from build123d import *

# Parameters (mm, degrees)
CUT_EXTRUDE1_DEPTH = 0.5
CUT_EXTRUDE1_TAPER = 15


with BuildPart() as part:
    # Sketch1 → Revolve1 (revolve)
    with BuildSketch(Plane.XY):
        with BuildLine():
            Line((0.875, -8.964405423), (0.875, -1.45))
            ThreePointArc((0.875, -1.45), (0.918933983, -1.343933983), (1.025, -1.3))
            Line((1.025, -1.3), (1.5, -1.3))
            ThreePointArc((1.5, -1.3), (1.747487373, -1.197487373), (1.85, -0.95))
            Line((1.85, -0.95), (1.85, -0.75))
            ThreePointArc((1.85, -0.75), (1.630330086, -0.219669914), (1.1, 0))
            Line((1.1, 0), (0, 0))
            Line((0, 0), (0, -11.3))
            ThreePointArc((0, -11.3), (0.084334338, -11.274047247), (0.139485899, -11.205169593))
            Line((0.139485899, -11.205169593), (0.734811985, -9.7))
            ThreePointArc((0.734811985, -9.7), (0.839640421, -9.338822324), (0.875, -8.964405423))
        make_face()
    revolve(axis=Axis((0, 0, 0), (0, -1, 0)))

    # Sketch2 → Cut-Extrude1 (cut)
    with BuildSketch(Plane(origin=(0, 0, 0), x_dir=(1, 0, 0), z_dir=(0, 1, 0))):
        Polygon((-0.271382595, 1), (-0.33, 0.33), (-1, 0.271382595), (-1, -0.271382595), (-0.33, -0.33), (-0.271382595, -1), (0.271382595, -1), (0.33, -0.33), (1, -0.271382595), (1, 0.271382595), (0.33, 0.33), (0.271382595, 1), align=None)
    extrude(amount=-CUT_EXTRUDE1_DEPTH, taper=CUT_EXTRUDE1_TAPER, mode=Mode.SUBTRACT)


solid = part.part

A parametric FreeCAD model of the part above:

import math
import FreeCAD as App
import Part
import Sketcher
from FreeCAD import Vector
Q = App.Units.Quantity

doc = App.newDocument("Part")
body = doc.addObject("PartDesign::Body", "Body")

sketch1 = body.newObject("Sketcher::SketchObject", "Sketch")
sketch1.AttachmentSupport = (doc.getObject("XY_Plane"), [""])
sketch1.MapMode = "FlatFace"
sketch1.addGeometry([
    Part.LineSegment(Vector(0.875, -8.964405, 0), Vector(0.875, -1.45, 0)),
    Part.ArcOfCircle(Part.Circle(Vector(1.025, -1.45, 0), Vector(0, 0, 1), 0.15), math.radians(90), math.radians(180)),
    Part.LineSegment(Vector(1.025, -1.3, 0), Vector(1.5, -1.3, 0)),
    Part.ArcOfCircle(Part.Circle(Vector(1.5, -0.95, 0), Vector(0, 0, 1), 0.35), math.radians(-90), math.radians(0)),
    Part.LineSegment(Vector(1.85, -0.95, 0), Vector(1.85, -0.75, 0)),
    Part.ArcOfCircle(Part.Circle(Vector(1.1, -0.75, 0), Vector(0, 0, 1), 0.75), math.radians(0), math.radians(90)),
    Part.LineSegment(Vector(1.1, 0, 0), Vector(0, 0, 0)),
    Part.LineSegment(Vector(0, 0, 0), Vector(0, -11.3, 0)),
    Part.ArcOfCircle(Part.Circle(Vector(0, -11.15, 0), Vector(0, 0, 1), 0.15), math.radians(-90), math.radians(-21.579834)),
    Part.LineSegment(Vector(0.139486, -11.20517, 0), Vector(0.734812, -9.7, 0)),
    Part.ArcOfCircle(Part.Circle(Vector(-1.125, -8.964405, 0), Vector(0, 0, 1), 2), math.radians(-21.579834), math.radians(0)),
], False)
sketch1.addConstraint([
    Sketcher.Constraint("Tangent", 0, 2, 1, 2),
    Sketcher.Constraint("Tangent", 1, 1, 2, 1),
    Sketcher.Constraint("Tangent", 2, 2, 3, 1),
    Sketcher.Constraint("Tangent", 3, 2, 4, 1),
    Sketcher.Constraint("Tangent", 4, 2, 5, 1),
    Sketcher.Constraint("Tangent", 5, 2, 6, 1),
    Sketcher.Constraint("Coincident", 6, 2, 7, 1),
    Sketcher.Constraint("Coincident", 7, 2, 8, 1),
    Sketcher.Constraint("Tangent", 8, 2, 9, 1),
    Sketcher.Constraint("Tangent", 9, 2, 10, 1),
    Sketcher.Constraint("Tangent", 10, 2, 0, 1),
    Sketcher.Constraint("Vertical", 0),
    Sketcher.Constraint("Horizontal", 2),
    Sketcher.Constraint("Vertical", 4),
    Sketcher.Constraint("Horizontal", 6),
    Sketcher.Constraint("Vertical", 7),
    Sketcher.Constraint("Coincident", 6, 2, -1, 1),
    Sketcher.Constraint("Equal", 1, 8),
    Sketcher.Constraint("PointOnObject", 8, 3, -2),
    Sketcher.Constraint("Radius", 10, 2.0),
    Sketcher.Constraint("Radius", 1, 0.15),
    Sketcher.Constraint("Radius", 3, 0.35),
    Sketcher.Constraint("Radius", 5, 0.75),
    Sketcher.Constraint("DistanceX", 6, 2, 6, 1, 1.1),
    Sketcher.Constraint("DistanceY", 4, 1, 4, 2, 0.2),
    Sketcher.Constraint("DistanceY", 7, 2, 7, 1, 11.3),
    Sketcher.Constraint("DistanceY", 9, 2, -1, 1, 9.7),
    Sketcher.Constraint("DistanceX", 2, 1, 2, 2, 0.475),
])
revolution = body.newObject("PartDesign::Revolution", "Revolution")
revolution.Profile = sketch1
revolution.ReferenceAxis = (sketch1, ["V_Axis"])
revolution.Angle = 360

sketch2 = body.newObject("Sketcher::SketchObject", "Sketch001")
sketch2.AttachmentSupport = (doc.getObject("XZ_Plane"), [""])
sketch2.MapMode = "FlatFace"
sketch2.addGeometry([
    Part.LineSegment(Vector(-0.271383, -1, 0), Vector(-0.33, -0.33, 0)),
    Part.LineSegment(Vector(-0.33, -0.33, 0), Vector(-1, -0.271383, 0)),
    Part.LineSegment(Vector(-1, -0.271383, 0), Vector(-1, 0.271383, 0)),
    Part.LineSegment(Vector(-1, 0.271383, 0), Vector(-0.33, 0.33, 0)),
    Part.LineSegment(Vector(-0.33, 0.33, 0), Vector(-0.271383, 1, 0)),
    Part.LineSegment(Vector(-0.271383, 1, 0), Vector(0.271383, 1, 0)),
    Part.LineSegment(Vector(0.271383, 1, 0), Vector(0.33, 0.33, 0)),
    Part.LineSegment(Vector(0.33, 0.33, 0), Vector(1, 0.271383, 0)),
    Part.LineSegment(Vector(1, 0.271383, 0), Vector(1, -0.271383, 0)),
    Part.LineSegment(Vector(1, -0.271383, 0), Vector(0.33, -0.33, 0)),
    Part.LineSegment(Vector(0.33, -0.33, 0), Vector(0.271383, -1, 0)),
    Part.LineSegment(Vector(0.271383, -1, 0), Vector(-0.271383, -1, 0)),
], False)
sketch2.addConstraint([
    Sketcher.Constraint("Coincident", 0, 2, 1, 1),
    Sketcher.Constraint("Coincident", 1, 2, 2, 1),
    Sketcher.Constraint("Coincident", 2, 2, 3, 1),
    Sketcher.Constraint("Coincident", 3, 2, 4, 1),
    Sketcher.Constraint("Coincident", 4, 2, 5, 1),
    Sketcher.Constraint("Coincident", 5, 2, 6, 1),
    Sketcher.Constraint("Coincident", 6, 2, 7, 1),
    Sketcher.Constraint("Coincident", 7, 2, 8, 1),
    Sketcher.Constraint("Coincident", 8, 2, 9, 1),
    Sketcher.Constraint("Coincident", 9, 2, 10, 1),
    Sketcher.Constraint("Coincident", 10, 2, 11, 1),
    Sketcher.Constraint("Coincident", 11, 2, 0, 1),
    Sketcher.Constraint("Vertical", 2),
    Sketcher.Constraint("Horizontal", 5),
    Sketcher.Constraint("Vertical", 8),
    Sketcher.Constraint("Horizontal", 11),
    Sketcher.Constraint("Symmetric", 0, 2, 6, 2, -1, 1),
    Sketcher.Constraint("Symmetric", 1, 2, 7, 2, -1, 1),
    Sketcher.Constraint("Symmetric", 3, 2, 9, 2, -1, 1),
    Sketcher.Constraint("Symmetric", 4, 2, 10, 2, -1, 1),
    Sketcher.Constraint("Symmetric", 3, 2, 6, 2, -2),
    Sketcher.Constraint("Perpendicular", 0, 3),
    Sketcher.Constraint("Perpendicular", 1, 4),
    Sketcher.Constraint("Perpendicular", 3, 6),
    Sketcher.Constraint("Perpendicular", 6, 9),
    Sketcher.Constraint("Horizontal", 2, 2, 7, 2),
    Sketcher.Constraint("Equal", 11, 2),
    Sketcher.Constraint("Equal", 0, 1),
    Sketcher.Constraint("Angle", 0, Q("95 deg")),
    Sketcher.Constraint("DistanceX", 1, 2, -1, 1, 1.0),
    Sketcher.Constraint("DistanceX", 0, 2, -1, 1, 0.33),
])
pocket1 = body.newObject("PartDesign::Pocket", "Pocket")
pocket1.Profile = sketch2
pocket1.Length = 0.5
pocket1.Reversed = True
pocket1.TaperAngle = -15

doc.recompute()
